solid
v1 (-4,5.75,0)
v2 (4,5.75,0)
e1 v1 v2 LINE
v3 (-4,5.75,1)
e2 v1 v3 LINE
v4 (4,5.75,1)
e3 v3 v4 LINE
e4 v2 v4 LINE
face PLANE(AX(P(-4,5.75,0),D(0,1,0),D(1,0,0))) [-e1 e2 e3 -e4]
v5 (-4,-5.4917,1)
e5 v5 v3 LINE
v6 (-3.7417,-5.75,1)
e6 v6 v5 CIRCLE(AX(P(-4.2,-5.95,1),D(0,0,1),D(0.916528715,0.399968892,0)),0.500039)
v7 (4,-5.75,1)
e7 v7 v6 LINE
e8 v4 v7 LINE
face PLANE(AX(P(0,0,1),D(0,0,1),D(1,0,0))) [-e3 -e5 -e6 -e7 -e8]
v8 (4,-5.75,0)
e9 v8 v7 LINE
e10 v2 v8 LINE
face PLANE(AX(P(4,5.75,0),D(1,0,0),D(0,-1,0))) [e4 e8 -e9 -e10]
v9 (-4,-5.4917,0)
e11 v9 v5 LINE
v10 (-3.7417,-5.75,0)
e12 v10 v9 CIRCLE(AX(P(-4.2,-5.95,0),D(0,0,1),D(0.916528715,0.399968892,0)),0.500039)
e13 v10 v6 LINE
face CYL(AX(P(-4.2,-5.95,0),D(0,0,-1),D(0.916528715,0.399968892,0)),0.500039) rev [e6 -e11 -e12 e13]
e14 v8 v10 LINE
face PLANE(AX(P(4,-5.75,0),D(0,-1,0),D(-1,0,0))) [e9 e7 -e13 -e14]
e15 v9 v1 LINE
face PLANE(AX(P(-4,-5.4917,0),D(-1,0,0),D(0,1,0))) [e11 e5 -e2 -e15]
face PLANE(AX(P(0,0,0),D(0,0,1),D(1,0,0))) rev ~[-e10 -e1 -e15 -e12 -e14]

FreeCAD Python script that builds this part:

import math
import FreeCAD as App
import Part
import Sketcher

doc = App.newDocument("Part")
body = doc.addObject("PartDesign::Body", "Body")

# Sketch on XY plane
sketch1 = body.newObject("Sketcher::SketchObject", "Sketch")
sketch1.AttachmentSupport = (doc.getObject("XY_Plane"), [""])
sketch1.MapMode = "FlatFace"
sketch1.addGeometry([
    Part.LineSegment(App.Vector(4, 5.75, 0), App.Vector(-4, 5.75, 0)),  # 0
    Part.LineSegment(App.Vector(-4, 5.75, 0), App.Vector(-4, -5.4917, 0)),  # 1
    Part.ArcOfCircle(Part.Circle(App.Vector(-4.2, -5.95, 0), App.Vector(0, 0, 1), 0.500039), math.radians(23.576234), math.radians(66.423766)),  # 2
    Part.LineSegment(App.Vector(-3.7417, -5.75, 0), App.Vector(4, -5.75, 0)),  # 3
    Part.LineSegment(App.Vector(4, -5.75, 0), App.Vector(4, 5.75, 0)),  # 4
], False)
sketch1.addConstraint([
    Sketcher.Constraint("Coincident", 0, 2, 1, 1),
    Sketcher.Constraint("Coincident", 1, 2, 2, 2),
    Sketcher.Constraint("Coincident", 2, 1, 3, 1),
    Sketcher.Constraint("Coincident", 3, 2, 4, 1),
    Sketcher.Constraint("Coincident", 4, 2, 0, 1),
    Sketcher.Constraint("Horizontal", 0),
    Sketcher.Constraint("Vertical", 1),
    Sketcher.Constraint("Horizontal", 3),
    Sketcher.Constraint("Vertical", 4),
    Sketcher.Constraint("Symmetric", 0, 2, 3, 2, -1, 1),
    Sketcher.Constraint("Radius", 2, 0.5),
    Sketcher.Constraint("DistanceX", 0, 2, 0, 1, 8.0),
    Sketcher.Constraint("DistanceY", 4, 1, 4, 2, 11.5),
    Sketcher.Constraint("DistanceX", 2, 3, 0, 2, 0.2),
    Sketcher.Constraint("DistanceY", 2, 3, 2, 1, 0.2),
])
pad1 = body.newObject("PartDesign::Pad", "Pad")
pad1.Profile = sketch1
pad1.Length = 1

doc.recompute()
